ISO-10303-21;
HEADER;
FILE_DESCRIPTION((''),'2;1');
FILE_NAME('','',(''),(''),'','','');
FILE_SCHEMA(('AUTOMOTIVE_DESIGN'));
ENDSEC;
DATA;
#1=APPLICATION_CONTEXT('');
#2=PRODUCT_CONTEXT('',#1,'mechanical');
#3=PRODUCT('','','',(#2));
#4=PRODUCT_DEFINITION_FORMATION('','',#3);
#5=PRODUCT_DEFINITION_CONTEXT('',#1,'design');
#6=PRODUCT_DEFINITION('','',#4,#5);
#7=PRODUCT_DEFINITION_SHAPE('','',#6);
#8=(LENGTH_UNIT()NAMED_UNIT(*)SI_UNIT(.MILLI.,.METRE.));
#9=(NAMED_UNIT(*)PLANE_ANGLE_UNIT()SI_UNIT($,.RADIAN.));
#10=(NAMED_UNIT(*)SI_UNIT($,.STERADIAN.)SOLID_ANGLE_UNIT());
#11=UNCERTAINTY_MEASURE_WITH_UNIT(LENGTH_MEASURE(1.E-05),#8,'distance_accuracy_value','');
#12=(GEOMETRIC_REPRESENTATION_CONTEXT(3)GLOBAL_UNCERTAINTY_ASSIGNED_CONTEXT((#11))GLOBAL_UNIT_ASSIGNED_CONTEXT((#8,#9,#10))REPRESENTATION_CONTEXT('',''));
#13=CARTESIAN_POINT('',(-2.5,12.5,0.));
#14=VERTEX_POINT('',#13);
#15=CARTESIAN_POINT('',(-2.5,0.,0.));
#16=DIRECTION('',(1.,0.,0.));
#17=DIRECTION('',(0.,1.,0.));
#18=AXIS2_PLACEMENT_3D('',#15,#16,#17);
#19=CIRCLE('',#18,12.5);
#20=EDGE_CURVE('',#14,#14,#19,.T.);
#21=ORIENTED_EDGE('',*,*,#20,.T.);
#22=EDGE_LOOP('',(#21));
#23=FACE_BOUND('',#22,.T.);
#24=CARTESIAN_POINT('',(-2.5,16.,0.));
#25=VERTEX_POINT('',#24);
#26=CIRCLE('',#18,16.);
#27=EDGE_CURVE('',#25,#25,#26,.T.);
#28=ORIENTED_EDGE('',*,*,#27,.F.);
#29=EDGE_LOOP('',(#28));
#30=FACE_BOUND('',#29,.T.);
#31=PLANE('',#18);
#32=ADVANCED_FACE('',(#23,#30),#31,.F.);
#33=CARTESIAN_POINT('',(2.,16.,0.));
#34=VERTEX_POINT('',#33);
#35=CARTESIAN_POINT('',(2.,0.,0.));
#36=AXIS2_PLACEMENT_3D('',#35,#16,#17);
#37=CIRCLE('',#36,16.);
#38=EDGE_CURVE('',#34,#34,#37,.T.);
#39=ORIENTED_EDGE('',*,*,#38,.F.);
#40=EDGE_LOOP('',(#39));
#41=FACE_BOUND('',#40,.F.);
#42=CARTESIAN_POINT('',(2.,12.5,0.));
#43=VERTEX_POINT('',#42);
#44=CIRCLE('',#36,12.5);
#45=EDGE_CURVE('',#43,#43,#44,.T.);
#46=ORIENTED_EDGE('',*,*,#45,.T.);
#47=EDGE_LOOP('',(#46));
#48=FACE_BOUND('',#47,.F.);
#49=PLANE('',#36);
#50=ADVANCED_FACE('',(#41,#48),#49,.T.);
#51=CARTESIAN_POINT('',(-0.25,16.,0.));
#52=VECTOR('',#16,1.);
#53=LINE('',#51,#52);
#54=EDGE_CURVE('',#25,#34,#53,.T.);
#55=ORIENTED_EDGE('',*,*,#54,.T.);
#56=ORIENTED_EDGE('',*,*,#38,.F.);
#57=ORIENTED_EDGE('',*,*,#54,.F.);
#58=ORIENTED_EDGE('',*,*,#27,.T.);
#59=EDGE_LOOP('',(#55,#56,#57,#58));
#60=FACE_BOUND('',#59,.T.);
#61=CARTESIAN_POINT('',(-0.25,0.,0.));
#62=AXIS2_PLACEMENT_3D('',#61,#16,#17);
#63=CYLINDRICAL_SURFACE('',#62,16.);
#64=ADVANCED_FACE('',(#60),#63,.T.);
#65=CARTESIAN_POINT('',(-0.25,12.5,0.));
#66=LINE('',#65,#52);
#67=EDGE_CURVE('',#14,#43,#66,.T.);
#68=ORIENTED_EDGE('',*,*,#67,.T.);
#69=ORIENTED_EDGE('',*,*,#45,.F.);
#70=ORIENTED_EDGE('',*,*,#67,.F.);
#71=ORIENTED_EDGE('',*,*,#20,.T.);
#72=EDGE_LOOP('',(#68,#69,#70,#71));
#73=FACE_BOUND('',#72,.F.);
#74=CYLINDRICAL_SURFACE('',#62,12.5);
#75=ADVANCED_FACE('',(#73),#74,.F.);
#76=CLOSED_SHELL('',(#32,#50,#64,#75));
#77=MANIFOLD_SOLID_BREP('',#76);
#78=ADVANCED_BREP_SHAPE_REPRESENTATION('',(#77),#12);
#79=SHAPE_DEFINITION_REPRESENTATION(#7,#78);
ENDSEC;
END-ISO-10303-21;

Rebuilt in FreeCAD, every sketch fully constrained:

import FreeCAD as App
import Part
import Sketcher

V = App.Vector
Q = App.Units.Quantity

doc = App.newDocument("Part")
params = doc.addObject("Spreadsheet::Sheet", "Params")
for row, (alias, value) in enumerate([
    ("sketch1_width", "4.5 mm"),
    ("sketch1_height", "3.5 mm"),
    ("revolution_angle", "360 deg"),
], start=1):
    params.set(f"A{row}", alias)
    params.set(f"B{row}", "=" + value)
    params.setAlias(f"B{row}", alias)

body = doc.addObject("PartDesign::Body", "Body")

# Sketch on XY plane
sketch1 = body.newObject("Sketcher::SketchObject", "Sketch")
sketch1.AttachmentSupport = (doc.getObject("XY_Plane"), [""])
sketch1.MapMode = "FlatFace"
sketch1.addGeometry([
    Part.LineSegment(V(-2.5, 16, 0), V(-2.5, 12.5, 0)),
    Part.LineSegment(V(-2.5, 12.5, 0), V(2, 12.5, 0)),
    Part.LineSegment(V(2, 12.5, 0), V(2, 16, 0)),
    Part.LineSegment(V(2, 16, 0), V(-2.5, 16, 0)),
], False)
sketch1.addConstraint([
    Sketcher.Constraint("Coincident", 0, 2, 1, 1),
    Sketcher.Constraint("Coincident", 1, 2, 2, 1),
    Sketcher.Constraint("Coincident", 2, 2, 3, 1),
    Sketcher.Constraint("Coincident", 3, 2, 0, 1),
    Sketcher.Constraint("Vertical", 0),
    Sketcher.Constraint("Horizontal", 1),
    Sketcher.Constraint("Vertical", 2),
    Sketcher.Constraint("Horizontal", 3),
    Sketcher.Constraint("DistanceX", 1, 1, 1, 2, Q("4.5 mm")),
    Sketcher.Constraint("DistanceY", 0, 2, 0, 1, Q("3.5 mm")),
    Sketcher.Constraint("DistanceX", -1, 1, 1, 2, Q("2 mm")),
    Sketcher.Constraint("DistanceY", -1, 1, 2, 2, Q("16 mm")),
])
sketch1.setExpression("Constraints[8]", "Params.sketch1_width")
sketch1.setExpression("Constraints[9]", "Params.sketch1_height")
revolution = body.newObject("PartDesign::Revolution", "Revolution")
revolution.Profile = sketch1
revolution.ReferenceAxis = (sketch1, ["H_Axis"])
revolution.setExpression("Angle", "Params.revolution_angle")

doc.recompute()
